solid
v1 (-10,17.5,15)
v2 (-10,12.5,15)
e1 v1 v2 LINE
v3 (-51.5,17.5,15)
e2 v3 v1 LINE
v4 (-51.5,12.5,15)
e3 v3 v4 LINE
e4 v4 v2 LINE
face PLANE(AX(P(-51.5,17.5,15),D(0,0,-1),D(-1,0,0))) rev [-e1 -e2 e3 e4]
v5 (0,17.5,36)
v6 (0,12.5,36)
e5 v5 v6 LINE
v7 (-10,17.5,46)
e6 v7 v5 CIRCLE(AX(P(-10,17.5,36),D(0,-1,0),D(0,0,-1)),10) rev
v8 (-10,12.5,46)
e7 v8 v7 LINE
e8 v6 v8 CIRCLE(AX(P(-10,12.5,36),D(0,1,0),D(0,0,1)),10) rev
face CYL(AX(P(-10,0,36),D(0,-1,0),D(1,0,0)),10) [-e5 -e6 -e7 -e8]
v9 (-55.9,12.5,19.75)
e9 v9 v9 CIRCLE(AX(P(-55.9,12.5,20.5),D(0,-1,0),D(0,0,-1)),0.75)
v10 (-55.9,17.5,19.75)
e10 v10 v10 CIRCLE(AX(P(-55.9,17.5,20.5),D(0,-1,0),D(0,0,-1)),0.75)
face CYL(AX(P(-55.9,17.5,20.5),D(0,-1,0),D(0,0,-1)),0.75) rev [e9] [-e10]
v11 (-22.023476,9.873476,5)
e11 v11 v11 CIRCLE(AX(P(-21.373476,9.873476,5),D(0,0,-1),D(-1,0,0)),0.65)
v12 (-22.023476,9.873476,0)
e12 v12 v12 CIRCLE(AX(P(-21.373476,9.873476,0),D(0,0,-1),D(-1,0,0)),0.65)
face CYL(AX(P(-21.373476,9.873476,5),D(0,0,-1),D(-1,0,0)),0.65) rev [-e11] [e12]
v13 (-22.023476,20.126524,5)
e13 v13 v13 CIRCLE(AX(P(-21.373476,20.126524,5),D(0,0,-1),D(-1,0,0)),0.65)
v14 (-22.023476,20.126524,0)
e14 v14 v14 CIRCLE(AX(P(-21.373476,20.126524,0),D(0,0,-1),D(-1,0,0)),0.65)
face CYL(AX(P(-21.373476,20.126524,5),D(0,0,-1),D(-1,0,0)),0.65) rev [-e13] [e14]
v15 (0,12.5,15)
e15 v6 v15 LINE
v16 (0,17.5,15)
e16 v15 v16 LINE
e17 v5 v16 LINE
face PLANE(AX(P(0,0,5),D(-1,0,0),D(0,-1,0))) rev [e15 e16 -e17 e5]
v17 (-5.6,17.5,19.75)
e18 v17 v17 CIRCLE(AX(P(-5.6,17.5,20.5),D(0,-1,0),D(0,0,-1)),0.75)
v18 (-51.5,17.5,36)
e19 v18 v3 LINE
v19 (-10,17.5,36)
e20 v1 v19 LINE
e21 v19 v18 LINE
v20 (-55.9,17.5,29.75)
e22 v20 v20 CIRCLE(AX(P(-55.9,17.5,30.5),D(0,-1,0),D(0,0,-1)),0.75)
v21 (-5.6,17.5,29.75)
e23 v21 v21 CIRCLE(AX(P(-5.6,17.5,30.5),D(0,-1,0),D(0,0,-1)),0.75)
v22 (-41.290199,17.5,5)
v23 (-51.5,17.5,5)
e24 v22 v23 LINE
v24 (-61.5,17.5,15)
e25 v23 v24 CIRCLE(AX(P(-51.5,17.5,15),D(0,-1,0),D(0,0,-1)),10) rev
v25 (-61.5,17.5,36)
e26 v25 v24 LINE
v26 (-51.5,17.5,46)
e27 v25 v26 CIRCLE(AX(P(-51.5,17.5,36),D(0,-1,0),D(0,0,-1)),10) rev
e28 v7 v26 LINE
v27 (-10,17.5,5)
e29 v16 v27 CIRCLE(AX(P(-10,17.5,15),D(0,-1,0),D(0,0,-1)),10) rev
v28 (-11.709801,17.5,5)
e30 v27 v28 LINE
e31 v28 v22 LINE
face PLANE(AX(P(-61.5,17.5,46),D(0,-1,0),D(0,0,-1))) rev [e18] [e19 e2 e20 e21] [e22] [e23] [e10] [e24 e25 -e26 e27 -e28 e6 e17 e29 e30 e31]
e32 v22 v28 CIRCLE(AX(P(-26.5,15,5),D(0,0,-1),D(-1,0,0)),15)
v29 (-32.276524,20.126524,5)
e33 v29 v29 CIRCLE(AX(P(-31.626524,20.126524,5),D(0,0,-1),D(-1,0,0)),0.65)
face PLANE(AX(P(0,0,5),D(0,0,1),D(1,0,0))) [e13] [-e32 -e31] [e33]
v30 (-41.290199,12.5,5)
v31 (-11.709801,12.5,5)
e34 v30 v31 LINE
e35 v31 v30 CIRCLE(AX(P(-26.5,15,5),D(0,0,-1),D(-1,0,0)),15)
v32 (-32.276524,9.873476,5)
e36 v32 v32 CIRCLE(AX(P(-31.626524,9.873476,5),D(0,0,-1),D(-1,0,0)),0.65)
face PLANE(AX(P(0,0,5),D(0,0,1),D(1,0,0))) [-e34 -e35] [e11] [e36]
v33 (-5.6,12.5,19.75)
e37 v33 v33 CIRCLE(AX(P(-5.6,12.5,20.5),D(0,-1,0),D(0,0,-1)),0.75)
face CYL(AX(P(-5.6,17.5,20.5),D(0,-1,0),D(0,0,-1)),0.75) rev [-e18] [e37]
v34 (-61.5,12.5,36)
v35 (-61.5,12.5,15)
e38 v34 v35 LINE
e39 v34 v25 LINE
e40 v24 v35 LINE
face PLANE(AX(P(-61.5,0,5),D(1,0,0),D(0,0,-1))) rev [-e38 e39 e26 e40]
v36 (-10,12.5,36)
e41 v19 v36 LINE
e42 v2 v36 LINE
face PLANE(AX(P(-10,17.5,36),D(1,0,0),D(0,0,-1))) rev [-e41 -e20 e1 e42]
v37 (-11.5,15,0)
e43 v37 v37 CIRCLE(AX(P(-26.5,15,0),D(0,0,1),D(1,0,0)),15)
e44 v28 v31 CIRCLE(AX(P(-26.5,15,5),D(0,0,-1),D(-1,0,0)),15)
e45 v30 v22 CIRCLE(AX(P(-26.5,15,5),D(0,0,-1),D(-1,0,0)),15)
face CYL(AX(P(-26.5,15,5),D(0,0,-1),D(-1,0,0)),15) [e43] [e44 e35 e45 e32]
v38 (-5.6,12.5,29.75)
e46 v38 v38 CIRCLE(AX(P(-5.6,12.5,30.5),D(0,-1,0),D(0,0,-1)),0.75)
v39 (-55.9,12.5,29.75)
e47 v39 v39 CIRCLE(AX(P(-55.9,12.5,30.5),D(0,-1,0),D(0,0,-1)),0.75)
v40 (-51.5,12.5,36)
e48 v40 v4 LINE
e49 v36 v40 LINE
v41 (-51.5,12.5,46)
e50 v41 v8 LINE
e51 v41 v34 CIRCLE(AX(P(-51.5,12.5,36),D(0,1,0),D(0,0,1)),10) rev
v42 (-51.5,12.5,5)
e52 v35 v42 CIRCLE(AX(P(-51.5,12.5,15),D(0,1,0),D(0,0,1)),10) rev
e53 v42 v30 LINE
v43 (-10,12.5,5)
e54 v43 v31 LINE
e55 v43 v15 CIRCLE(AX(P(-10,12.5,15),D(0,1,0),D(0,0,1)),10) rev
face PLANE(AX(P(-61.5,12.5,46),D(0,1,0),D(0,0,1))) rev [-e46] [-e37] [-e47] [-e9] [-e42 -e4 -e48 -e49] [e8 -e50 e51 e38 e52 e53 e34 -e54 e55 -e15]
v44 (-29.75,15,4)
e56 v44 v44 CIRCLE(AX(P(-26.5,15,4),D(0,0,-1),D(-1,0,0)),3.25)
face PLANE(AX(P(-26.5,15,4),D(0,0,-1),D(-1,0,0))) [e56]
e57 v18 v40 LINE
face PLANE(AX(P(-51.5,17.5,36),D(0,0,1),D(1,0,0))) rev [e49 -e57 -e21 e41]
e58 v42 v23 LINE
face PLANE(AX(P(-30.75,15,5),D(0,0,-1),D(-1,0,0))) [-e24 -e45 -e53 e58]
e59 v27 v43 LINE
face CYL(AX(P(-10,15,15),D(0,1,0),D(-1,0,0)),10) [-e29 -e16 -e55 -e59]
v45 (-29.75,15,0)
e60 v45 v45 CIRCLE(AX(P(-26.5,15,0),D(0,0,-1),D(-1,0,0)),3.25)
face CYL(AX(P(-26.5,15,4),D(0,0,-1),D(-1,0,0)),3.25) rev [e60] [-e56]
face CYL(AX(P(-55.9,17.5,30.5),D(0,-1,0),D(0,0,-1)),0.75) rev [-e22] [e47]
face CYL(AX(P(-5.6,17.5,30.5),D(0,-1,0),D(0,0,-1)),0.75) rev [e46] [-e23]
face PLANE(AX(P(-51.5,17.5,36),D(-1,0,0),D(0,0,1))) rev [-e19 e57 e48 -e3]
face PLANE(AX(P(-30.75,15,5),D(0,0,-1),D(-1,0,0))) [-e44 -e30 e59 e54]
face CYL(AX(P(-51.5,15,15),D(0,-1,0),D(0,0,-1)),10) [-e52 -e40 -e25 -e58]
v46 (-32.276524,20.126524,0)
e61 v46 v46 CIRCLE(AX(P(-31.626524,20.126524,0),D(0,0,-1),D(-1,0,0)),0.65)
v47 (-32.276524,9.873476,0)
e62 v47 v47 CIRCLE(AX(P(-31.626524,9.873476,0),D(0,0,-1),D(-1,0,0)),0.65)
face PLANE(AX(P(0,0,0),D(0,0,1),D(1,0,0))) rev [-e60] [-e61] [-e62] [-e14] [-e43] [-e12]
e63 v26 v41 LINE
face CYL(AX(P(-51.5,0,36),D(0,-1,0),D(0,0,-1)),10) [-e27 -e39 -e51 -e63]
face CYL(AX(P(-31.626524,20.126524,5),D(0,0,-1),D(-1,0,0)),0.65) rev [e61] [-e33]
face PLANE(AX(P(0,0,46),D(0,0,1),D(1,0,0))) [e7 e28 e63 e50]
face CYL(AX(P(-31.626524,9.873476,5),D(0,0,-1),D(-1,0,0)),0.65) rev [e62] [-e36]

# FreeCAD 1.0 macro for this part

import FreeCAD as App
import Part
import Sketcher
from FreeCAD import Vector
Q = App.Units.Quantity


def edges_at(feature, points):
    """Names of the edges that pass closest to the given points."""
    edges = feature.Shape.Edges
    near = lambda p: min(range(len(edges)), key=lambda i: edges[i].distToShape(Part.Vertex(*p))[0])
    return sorted({f"Edge{near(p) + 1}" for p in points})


def add_polygon(sketch, points):
    """Adds a closed chain of lines whose ends are joined by coincident constraints."""
    first, n = sketch.GeometryCount, len(points)
    for a, b in zip(points, points[1:] + points[:1]):
        sketch.addGeometry(Part.LineSegment(App.Vector(*a, 0), App.Vector(*b, 0)), False)
    for i in range(n):
        sketch.addConstraint(Sketcher.Constraint("Coincident", first + i, 2, first + (i + 1) % n, 1))

doc = App.newDocument("Part")
body = doc.addObject("PartDesign::Body", "Body")

# Sketch on XY plane
sketch1 = body.newObject("Sketcher::SketchObject", "Sketch")
sketch1.AttachmentSupport = (doc.getObject("XY_Plane"), [""])
sketch1.MapMode = "FlatFace"
add_polygon(sketch1, [(-61.5, 30), (-61.5, 0), (0, 0), (0, 30)])  # lines 0-3
sketch1.addConstraint([
    Sketcher.Constraint("Vertical", 0),
    Sketcher.Constraint("Horizontal", 1),
    Sketcher.Constraint("Vertical", 2),
    Sketcher.Constraint("Horizontal", 3),
    Sketcher.Constraint("Coincident", 1, 2, -1, 1),
    Sketcher.Constraint("DistanceY", 0, 2, 0, 1, Q("30 mm")),
    Sketcher.Constraint("DistanceX", 1, 1, 1, 2, Q("61.5 mm")),
])
pad1 = body.newObject("PartDesign::Pad", "Pad")
pad1.Profile = sketch1
pad1.Length = 5

# Sketch on XY plane
sketch2 = body.newObject("Sketcher::SketchObject", "Sketch001")
sketch2.AttachmentSupport = (doc.getObject("XY_Plane"), [""])
sketch2.MapMode = "FlatFace"
sketch2.AttachmentOffset = App.Placement(Vector(0, 0, 5), App.Rotation())
add_polygon(sketch2, [(-61.5, 17.5), (-61.5, 12.5), (0, 12.5), (0, 17.5)])  # lines 0-3
sketch2.addConstraint([
    Sketcher.Constraint("Vertical", 0),
    Sketcher.Constraint("Horizontal", 1),
    Sketcher.Constraint("Vertical", 2),
    Sketcher.Constraint("Horizontal", 3),
    Sketcher.Constraint("PointOnObject", 1, 2, -2),
    Sketcher.Constraint("DistanceY", 0, 2, 0, 1, Q("5 mm")),
    Sketcher.Constraint("DistanceX", 1, 1, 1, 2, Q("61.5 mm")),
    Sketcher.Constraint("DistanceY", -1, 1, 0, 2, Q("12.5 mm")),
])
pad2 = body.newObject("PartDesign::Pad", "Pad001")
pad2.Profile = sketch2
pad2.Length = 41

# Sketch on XZ plane
sketch3 = body.newObject("Sketcher::SketchObject", "Sketch002")
sketch3.AttachmentSupport = (doc.getObject("XZ_Plane"), [""])
sketch3.MapMode = "FlatFace"
sketch3.AttachmentOffset = App.Placement(Vector(0, 0, -12.5), App.Rotation())
add_polygon(sketch3, [(-51.5, 36), (-51.5, 15), (-10, 15), (-10, 36)])  # lines 0-3
sketch3.addConstraint([
    Sketcher.Constraint("Vertical", 0),
    Sketcher.Constraint("Horizontal", 1),
    Sketcher.Constraint("Vertical", 2),
    Sketcher.Constraint("Horizontal", 3),
    Sketcher.Constraint("DistanceY", 0, 2, 0, 1, Q("21 mm")),
    Sketcher.Constraint("DistanceX", 1, 1, 1, 2, Q("41.5 mm")),
    Sketcher.Constraint("DistanceY", -1, 1, 0, 2, Q("15 mm")),
    Sketcher.Constraint("DistanceX", 1, 2, -1, 1, Q("10 mm")),
])
pocket1 = body.newObject("PartDesign::Pocket", "Pocket")
pocket1.Profile = sketch3
pocket1.Length = 5

# Sketch on XY plane
sketch4 = body.newObject("Sketcher::SketchObject", "Sketch003")
sketch4.AttachmentSupport = (doc.getObject("XY_Plane"), [""])
sketch4.MapMode = "FlatFace"
add_polygon(sketch4, [(9.245, 39.245), (9.245, -9.245), (-70.745, -9.245), (-70.745, 39.245)])  # lines 0-3
sketch4.addGeometry(Part.Circle(Vector(-26.5, 15, 0), Vector(0, 0, 1), 15), False)  # 4
sketch4.addConstraint([
    Sketcher.Constraint("Vertical", 0),
    Sketcher.Constraint("Horizontal", 1),
    Sketcher.Constraint("Vertical", 2),
    Sketcher.Constraint("Horizontal", 3),
    Sketcher.Constraint("Diameter", 4, Q("30 mm")),
    Sketcher.Constraint("DistanceY", -1, 1, 4, 3, Q("15 mm")),
    Sketcher.Constraint("DistanceX", 1, 2, 1, 1, Q("79.99 mm")),
    Sketcher.Constraint("DistanceY", 0, 2, 0, 1, Q("48.49 mm")),
    Sketcher.Constraint("DistanceX", 4, 3, -1, 1, Q("26.5 mm")),
    Sketcher.Constraint("DistanceX", -1, 1, 0, 2, Q("9.245 mm")),
    Sketcher.Constraint("DistanceY", 0, 2, -1, 1, Q("9.245 mm")),
])
pocket2 = body.newObject("PartDesign::Pocket", "Pocket001")
pocket2.Profile = sketch4
pocket2.Length = 5
pocket2.Reversed = True

# Sketch on XY plane
sketch5 = body.newObject("Sketcher::SketchObject", "Sketch004")
sketch5.AttachmentSupport = (doc.getObject("XY_Plane"), [""])
sketch5.MapMode = "FlatFace"
sketch5.addGeometry(Part.Circle(Vector(-26.5, 15, 0), Vector(0, 0, 1), 3.25), False)
sketch5.addConstraint([
    Sketcher.Constraint("Diameter", 0, Q("6.5 mm")),
    Sketcher.Constraint("DistanceY", -1, 1, 0, 3, Q("15 mm")),
    Sketcher.Constraint("DistanceX", 0, 3, -1, 1, Q("26.5 mm")),
])
pocket3 = body.newObject("PartDesign::Pocket", "Pocket002")
pocket3.Profile = sketch5
pocket3.Length = 4
pocket3.Reversed = True
doc.recompute()

fillet = body.newObject("PartDesign::Fillet", "Fillet")
fillet.Base = (pocket3, edges_at(pocket3, [(-61.5, 15, 5)]))
fillet.Radius = 10
doc.recompute()

fillet2 = body.newObject("PartDesign::Fillet", "Fillet001")
fillet2.Base = (fillet, edges_at(fillet, [(-61.5, 15, 46)]))
fillet2.Radius = 10
doc.recompute()

fillet3 = body.newObject("PartDesign::Fillet", "Fillet002")
fillet3.Base = (fillet2, edges_at(fillet2, [(0, 15, 5)]))
fillet3.Radius = 10
doc.recompute()

fillet4 = body.newObject("PartDesign::Fillet", "Fillet003")
fillet4.Base = (fillet3, edges_at(fillet3, [(0, 15, 46)]))
fillet4.Radius = 10

# Sketch on XZ plane
sketch6 = body.newObject("Sketcher::SketchObject", "Sketch005")
sketch6.AttachmentSupport = (doc.getObject("XZ_Plane"), [""])
sketch6.MapMode = "FlatFace"
sketch6.AttachmentOffset = App.Placement(Vector(0, 0, -12.5), App.Rotation())
sketch6.addGeometry([
    Part.Circle(Vector(-55.9, 20.5, 0), Vector(0, 0, 1), 0.75),
    Part.Circle(Vector(-55.9, 30.5, 0), Vector(0, 0, 1), 0.75),
    Part.Circle(Vector(-5.6, 30.5, 0), Vector(0, 0, 1), 0.75),
    Part.Circle(Vector(-5.6, 20.5, 0), Vector(0, 0, 1), 0.75),
], False)
sketch6.addConstraint([
    Sketcher.Constraint("Equal", 0, 1),
    Sketcher.Constraint("Equal", 1, 2),
    Sketcher.Constraint("Equal", 2, 3),
    Sketcher.Constraint("Horizontal", 1, 3, 2, 3),
    Sketcher.Constraint("Horizontal", 0, 3, 3, 3),
    Sketcher.Constraint("Vertical", 0, 3, 1, 3),
    Sketcher.Constraint("Vertical", 2, 3, 3, 3),
    Sketcher.Constraint("Diameter", 0, Q("1.5 mm")),
    Sketcher.Constraint("DistanceY", 0, 3, 1, 3, Q("10 mm")),
    Sketcher.Constraint("DistanceX", 0, 3, -1, 1, Q("55.9 mm")),
    Sketcher.Constraint("DistanceY", -1, 1, 0, 3, Q("20.5 mm")),
    Sketcher.Constraint("DistanceX", 2, 3, -1, 1, Q("5.6 mm")),
])
pocket4 = body.newObject("PartDesign::Pocket", "Pocket003")
pocket4.Profile = sketch6
pocket4.Length = 5

# Sketch on XY plane
sketch7 = body.newObject("Sketcher::SketchObject", "Sketch006")
sketch7.AttachmentSupport = (doc.getObject("XY_Plane"), [""])
sketch7.MapMode = "FlatFace"
sketch7.addGeometry([
    Part.Circle(Vector(-31.626524, 20.126524, 0), Vector(0, 0, 1), 0.65),
    Part.Circle(Vector(-31.626524, 9.873476, 0), Vector(0, 0, 1), 0.65),
    Part.Circle(Vector(-21.373476, 9.873476, 0), Vector(0, 0, 1), 0.65),
    Part.Circle(Vector(-21.373476, 20.126524, 0), Vector(0, 0, 1), 0.65),
], False)
sketch7.addConstraint([
    Sketcher.Constraint("Equal", 0, 1),
    Sketcher.Constraint("Equal", 1, 2),
    Sketcher.Constraint("Equal", 2, 3),
    Sketcher.Constraint("Horizontal", 1, 3, 2, 3),
    Sketcher.Constraint("Horizontal", 0, 3, 3, 3),
    Sketcher.Constraint("Vertical", 0, 3, 1, 3),
    Sketcher.Constraint("Vertical", 2, 3, 3, 3),
    Sketcher.Constraint("Diameter", 0, Q("1.3 mm")),
    Sketcher.Constraint("DistanceY", 1, 3, 0, 3, Q("10.253048 mm")),
    Sketcher.Constraint("DistanceX", 1, 3, 2, 3, Q("10.253048 mm")),
    Sketcher.Constraint("DistanceX", 0, 3, -1, 1, Q("31.626524 mm")),
    Sketcher.Constraint("DistanceY", -1, 1, 0, 3, Q("20.126524 mm")),
])
pocket5 = body.newObject("PartDesign::Pocket", "Pocket004")
pocket5.Profile = sketch7
pocket5.Length = 5
pocket5.Reversed = True

doc.recompute()
